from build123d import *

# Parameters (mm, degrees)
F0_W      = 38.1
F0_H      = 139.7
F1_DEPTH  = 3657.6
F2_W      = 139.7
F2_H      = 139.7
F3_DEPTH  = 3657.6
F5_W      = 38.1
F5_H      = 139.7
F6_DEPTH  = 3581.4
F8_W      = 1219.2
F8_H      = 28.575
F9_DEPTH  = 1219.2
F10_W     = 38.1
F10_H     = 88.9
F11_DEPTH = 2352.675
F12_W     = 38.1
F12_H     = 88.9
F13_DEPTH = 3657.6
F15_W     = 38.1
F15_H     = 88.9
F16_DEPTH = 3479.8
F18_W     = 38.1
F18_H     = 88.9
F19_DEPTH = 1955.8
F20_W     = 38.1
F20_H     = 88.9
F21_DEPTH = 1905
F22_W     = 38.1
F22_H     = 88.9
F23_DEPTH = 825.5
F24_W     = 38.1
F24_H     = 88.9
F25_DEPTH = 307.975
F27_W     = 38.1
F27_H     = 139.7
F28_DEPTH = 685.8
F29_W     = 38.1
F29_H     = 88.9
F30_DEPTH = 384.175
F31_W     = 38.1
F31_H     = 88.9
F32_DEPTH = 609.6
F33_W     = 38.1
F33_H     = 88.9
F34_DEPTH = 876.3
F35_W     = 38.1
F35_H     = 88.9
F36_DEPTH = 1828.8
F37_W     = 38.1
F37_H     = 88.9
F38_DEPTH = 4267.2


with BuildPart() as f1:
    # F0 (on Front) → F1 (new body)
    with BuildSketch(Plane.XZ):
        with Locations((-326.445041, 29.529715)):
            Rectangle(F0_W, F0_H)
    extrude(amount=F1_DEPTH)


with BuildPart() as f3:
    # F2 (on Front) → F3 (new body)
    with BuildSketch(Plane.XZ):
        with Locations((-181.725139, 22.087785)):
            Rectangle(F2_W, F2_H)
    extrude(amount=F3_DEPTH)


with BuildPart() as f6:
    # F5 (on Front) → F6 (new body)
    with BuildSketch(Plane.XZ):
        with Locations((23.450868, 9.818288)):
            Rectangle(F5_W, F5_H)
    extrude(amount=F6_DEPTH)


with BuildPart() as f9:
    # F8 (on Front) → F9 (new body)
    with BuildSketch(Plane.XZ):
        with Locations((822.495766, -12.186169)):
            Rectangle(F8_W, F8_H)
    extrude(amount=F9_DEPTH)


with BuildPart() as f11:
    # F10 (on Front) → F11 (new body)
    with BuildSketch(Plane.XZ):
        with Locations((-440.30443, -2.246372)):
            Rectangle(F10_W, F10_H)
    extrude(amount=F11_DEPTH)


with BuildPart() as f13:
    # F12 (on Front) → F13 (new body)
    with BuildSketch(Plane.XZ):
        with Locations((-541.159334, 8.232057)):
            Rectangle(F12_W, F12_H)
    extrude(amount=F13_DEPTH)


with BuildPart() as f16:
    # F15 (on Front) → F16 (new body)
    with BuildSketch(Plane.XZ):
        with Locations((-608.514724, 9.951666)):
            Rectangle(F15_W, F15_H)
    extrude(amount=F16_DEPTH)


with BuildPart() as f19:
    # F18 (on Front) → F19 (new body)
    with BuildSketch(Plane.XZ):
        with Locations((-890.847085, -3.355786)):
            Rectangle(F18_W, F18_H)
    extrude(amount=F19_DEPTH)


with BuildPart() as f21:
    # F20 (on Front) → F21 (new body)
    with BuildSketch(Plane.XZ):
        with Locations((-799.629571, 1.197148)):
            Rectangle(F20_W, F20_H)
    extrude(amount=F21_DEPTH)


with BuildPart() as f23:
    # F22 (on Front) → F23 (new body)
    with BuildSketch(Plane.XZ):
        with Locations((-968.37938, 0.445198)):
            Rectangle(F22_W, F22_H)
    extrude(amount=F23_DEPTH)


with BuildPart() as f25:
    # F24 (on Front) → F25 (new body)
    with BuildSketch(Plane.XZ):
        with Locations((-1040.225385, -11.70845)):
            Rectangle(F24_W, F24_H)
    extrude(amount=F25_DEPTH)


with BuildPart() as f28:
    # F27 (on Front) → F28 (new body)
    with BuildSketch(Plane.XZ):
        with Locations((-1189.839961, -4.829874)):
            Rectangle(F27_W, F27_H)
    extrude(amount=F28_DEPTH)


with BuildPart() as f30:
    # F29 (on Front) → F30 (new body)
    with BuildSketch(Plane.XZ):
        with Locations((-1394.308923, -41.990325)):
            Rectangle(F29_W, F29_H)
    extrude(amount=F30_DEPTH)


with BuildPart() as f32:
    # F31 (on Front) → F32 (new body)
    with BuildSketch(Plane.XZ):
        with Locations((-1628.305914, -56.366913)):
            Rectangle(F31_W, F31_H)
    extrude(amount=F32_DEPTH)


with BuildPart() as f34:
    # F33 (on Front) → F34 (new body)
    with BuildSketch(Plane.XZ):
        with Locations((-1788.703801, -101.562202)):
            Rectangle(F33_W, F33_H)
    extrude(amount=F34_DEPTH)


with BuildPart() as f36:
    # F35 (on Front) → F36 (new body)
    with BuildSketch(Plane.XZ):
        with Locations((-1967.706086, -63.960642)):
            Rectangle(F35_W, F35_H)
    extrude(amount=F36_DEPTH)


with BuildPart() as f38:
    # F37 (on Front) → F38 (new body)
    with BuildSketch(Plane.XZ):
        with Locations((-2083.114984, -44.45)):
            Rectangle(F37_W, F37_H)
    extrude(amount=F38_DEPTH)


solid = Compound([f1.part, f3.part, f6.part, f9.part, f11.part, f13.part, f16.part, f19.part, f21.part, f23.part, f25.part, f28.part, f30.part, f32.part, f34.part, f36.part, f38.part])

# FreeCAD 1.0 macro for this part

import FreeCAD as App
import Part
import Sketcher
Q = App.Units.Quantity


def add_polygon(sketch, points):
    """Adds a closed chain of lines whose ends are joined by coincident constraints."""
    first, n = sketch.GeometryCount, len(points)
    for a, b in zip(points, points[1:] + points[:1]):
        sketch.addGeometry(Part.LineSegment(App.Vector(*a, 0), App.Vector(*b, 0)), False)
    for i in range(n):
        sketch.addConstraint(Sketcher.Constraint("Coincident", first + i, 2, first + (i + 1) % n, 1))

doc = App.newDocument("Part")
body = doc.addObject("PartDesign::Body", "Body")

sketch1 = doc.addObject("Sketcher::SketchObject", "Sketch")
body.addObject(sketch1)
sketch1.AttachmentSupport = (doc.XZ_Plane, [""])
sketch1.MapMode = "FlatFace"
add_polygon(sketch1, [(-345.495041, 99.379715), (-345.495041, -40.320285), (-307.395041, -40.320285), (-307.395041, 99.379715)])
sketch1.addConstraint(Sketcher.Constraint("Vertical", 0))
sketch1.addConstraint(Sketcher.Constraint("Horizontal", 1))
sketch1.addConstraint(Sketcher.Constraint("Vertical", 2))
sketch1.addConstraint(Sketcher.Constraint("Horizontal", 3))
sketch1.addConstraint(Sketcher.Constraint("DistanceX", 1, 1, 1, 2, Q("1.5 in")))
sketch1.addConstraint(Sketcher.Constraint("DistanceY", 0, 2, 0, 1, Q("5.5 in")))
sketch1.addConstraint(Sketcher.Constraint("DistanceX", 0, 2, -1, 1, Q("345.495041 mm")))
sketch1.addConstraint(Sketcher.Constraint("DistanceY", 0, 2, -1, 1, Q("40.320285 mm")))
pad1 = doc.addObject("PartDesign::Pad", "Pad")
body.addObject(pad1)
pad1.Profile = sketch1
pad1.Length = Q("144 in")
body2 = doc.addObject("PartDesign::Body", "Body001")

sketch2 = doc.addObject("Sketcher::SketchObject", "Sketch001")
body2.addObject(sketch2)
sketch2.AttachmentSupport = (doc.getObject("XZ_Plane001"), [""])
sketch2.MapMode = "FlatFace"
add_polygon(sketch2, [(-251.575139, 91.937785), (-251.575139, -47.762215), (-111.875139, -47.762215), (-111.875139, 91.937785)])
sketch2.addConstraint(Sketcher.Constraint("Vertical", 0))
sketch2.addConstraint(Sketcher.Constraint("Horizontal", 1))
sketch2.addConstraint(Sketcher.Constraint("Vertical", 2))
sketch2.addConstraint(Sketcher.Constraint("Horizontal", 3))
sketch2.addConstraint(Sketcher.Constraint("Equal", 3, 0))
sketch2.addConstraint(Sketcher.Constraint("DistanceX", 1, 1, 1, 2, Q("5.5 in")))
sketch2.addConstraint(Sketcher.Constraint("DistanceX", 0, 2, -1, 1, Q("251.575139 mm")))
sketch2.addConstraint(Sketcher.Constraint("DistanceY", 0, 2, -1, 1, Q("47.762215 mm")))
pad2 = doc.addObject("PartDesign::Pad", "Pad001")
body2.addObject(pad2)
pad2.Profile = sketch2
pad2.Length = Q("144 in")
body3 = doc.addObject("PartDesign::Body", "Body002")

sketch3 = doc.addObject("Sketcher::SketchObject", "Sketch002")
body3.addObject(sketch3)
sketch3.AttachmentSupport = (doc.getObject("XZ_Plane002"), [""])
sketch3.MapMode = "FlatFace"
add_polygon(sketch3, [(4.400868, 79.668288), (4.400868, -60.031712), (42.500868, -60.031712), (42.500868, 79.668288)])
sketch3.addConstraint(Sketcher.Constraint("Vertical", 0))
sketch3.addConstraint(Sketcher.Constraint("Horizontal", 1))
sketch3.addConstraint(Sketcher.Constraint("Vertical", 2))
sketch3.addConstraint(Sketcher.Constraint("Horizontal", 3))
sketch3.addConstraint(Sketcher.Constraint("DistanceX", 1, 1, 1, 2, Q("1.5 in")))
sketch3.addConstraint(Sketcher.Constraint("DistanceY", 0, 2, 0, 1, Q("5.5 in")))
sketch3.addConstraint(Sketcher.Constraint("DistanceY", -1, 1, 2, 2, Q("79.668288 mm")))
sketch3.addConstraint(Sketcher.Constraint("DistanceX", -1, 1, 0, 2, Q("4.400868 mm")))
pad3 = doc.addObject("PartDesign::Pad", "Pad002")
body3.addObject(pad3)
pad3.Profile = sketch3
pad3.Length = Q("141 in")
body4 = doc.addObject("PartDesign::Body", "Body003")

sketch4 = doc.addObject("Sketcher::SketchObject", "Sketch003")
body4.addObject(sketch4)
sketch4.AttachmentSupport = (doc.getObject("XZ_Plane003"), [""])
sketch4.MapMode = "FlatFace"
add_polygon(sketch4, [(212.895766, 2.101331), (212.895766, -26.473669), (1432.095766, -26.473669), (1432.095766, 2.101331)])
sketch4.addConstraint(Sketcher.Constraint("Vertical", 0))
sketch4.addConstraint(Sketcher.Constraint("Horizontal", 1))
sketch4.addConstraint(Sketcher.Constraint("Vertical", 2))
sketch4.addConstraint(Sketcher.Constraint("Horizontal", 3))
sketch4.addConstraint(Sketcher.Constraint("DistanceX", 1, 1, 1, 2, Q("48 in")))
sketch4.addConstraint(Sketcher.Constraint("DistanceY", 0, 2, 0, 1, Q("1.125 in")))
sketch4.addConstraint(Sketcher.Constraint("DistanceY", 0, 2, -1, 1, Q("26.473669 mm")))
sketch4.addConstraint(Sketcher.Constraint("DistanceX", -1, 1, 0, 2, Q("212.895766 mm")))
pad4 = doc.addObject("PartDesign::Pad", "Pad003")
body4.addObject(pad4)
pad4.Profile = sketch4
pad4.Length = Q("48 in")
body5 = doc.addObject("PartDesign::Body", "Body004")

sketch5 = doc.addObject("Sketcher::SketchObject", "Sketch004")
body5.addObject(sketch5)
sketch5.AttachmentSupport = (doc.getObject("XZ_Plane004"), [""])
sketch5.MapMode = "FlatFace"
add_polygon(sketch5, [(-459.35443, 42.203628), (-459.35443, -46.696372), (-421.25443, -46.696372), (-421.25443, 42.203628)])
sketch5.addConstraint(Sketcher.Constraint("Vertical", 0))
sketch5.addConstraint(Sketcher.Constraint("Horizontal", 1))
sketch5.addConstraint(Sketcher.Constraint("Vertical", 2))
sketch5.addConstraint(Sketcher.Constraint("Horizontal", 3))
sketch5.addConstraint(Sketcher.Constraint("DistanceX", 1, 1, 1, 2, Q("1.5 in")))
sketch5.addConstraint(Sketcher.Constraint("DistanceY", 0, 2, 0, 1, Q("3.5 in")))
sketch5.addConstraint(Sketcher.Constraint("DistanceX", 0, 2, -1, 1, Q("459.35443 mm")))
sketch5.addConstraint(Sketcher.Constraint("DistanceY", 0, 2, -1, 1, Q("46.696372 mm")))
pad5 = doc.addObject("PartDesign::Pad", "Pad004")
body5.addObject(pad5)
pad5.Profile = sketch5
pad5.Length = Q("92.625 in")
body6 = doc.addObject("PartDesign::Body", "Body005")

sketch6 = doc.addObject("Sketcher::SketchObject", "Sketch005")
body6.addObject(sketch6)
sketch6.AttachmentSupport = (doc.getObject("XZ_Plane005"), [""])
sketch6.MapMode = "FlatFace"
add_polygon(sketch6, [(-560.209334, 52.682057), (-560.209334, -36.217943), (-522.109334, -36.217943), (-522.109334, 52.682057)])
sketch6.addConstraint(Sketcher.Constraint("Vertical", 0))
sketch6.addConstraint(Sketcher.Constraint("Horizontal", 1))
sketch6.addConstraint(Sketcher.Constraint("Vertical", 2))
sketch6.addConstraint(Sketcher.Constraint("Horizontal", 3))
sketch6.addConstraint(Sketcher.Constraint("DistanceX", 1, 1, 1, 2, Q("1.5 in")))
sketch6.addConstraint(Sketcher.Constraint("DistanceY", 0, 2, 0, 1, Q("3.5 in")))
sketch6.addConstraint(Sketcher.Constraint("DistanceX", 0, 2, -1, 1, Q("560.209334 mm")))
sketch6.addConstraint(Sketcher.Constraint("DistanceY", 0, 2, -1, 1, Q("36.217943 mm")))
pad6 = doc.addObject("PartDesign::Pad", "Pad005")
body6.addObject(pad6)
pad6.Profile = sketch6
pad6.Length = Q("144 in")
body7 = doc.addObject("PartDesign::Body", "Body006")

sketch7 = doc.addObject("Sketcher::SketchObject", "Sketch006")
body7.addObject(sketch7)
sketch7.AttachmentSupport = (doc.getObject("XZ_Plane006"), [""])
sketch7.MapMode = "FlatFace"
add_polygon(sketch7, [(-627.564724, 54.401666), (-627.564724, -34.498334), (-589.464724, -34.498334), (-589.464724, 54.401666)])
sketch7.addConstraint(Sketcher.Constraint("Vertical", 0))
sketch7.addConstraint(Sketcher.Constraint("Horizontal", 1))
sketch7.addConstraint(Sketcher.Constraint("Vertical", 2))
sketch7.addConstraint(Sketcher.Constraint("Horizontal", 3))
sketch7.addConstraint(Sketcher.Constraint("DistanceX", 1, 1, 1, 2, Q("1.5 in")))
sketch7.addConstraint(Sketcher.Constraint("DistanceY", 0, 2, 0, 1, Q("3.5 in")))
sketch7.addConstraint(Sketcher.Constraint("DistanceX", 0, 2, -1, 1, Q("627.564724 mm")))
sketch7.addConstraint(Sketcher.Constraint("DistanceY", 0, 2, -1, 1, Q("34.498334 mm")))
pad7 = doc.addObject("PartDesign::Pad", "Pad006")
body7.addObject(pad7)
pad7.Profile = sketch7
pad7.Length = Q("137 in")
body8 = doc.addObject("PartDesign::Body", "Body007")

sketch8 = doc.addObject("Sketcher::SketchObject", "Sketch007")
body8.addObject(sketch8)
sketch8.AttachmentSupport = (doc.getObject("XZ_Plane007"), [""])
sketch8.MapMode = "FlatFace"
add_polygon(sketch8, [(-909.897085, 41.094214), (-909.897085, -47.805786), (-871.797085, -47.805786), (-871.797085, 41.094214)])
sketch8.addConstraint(Sketcher.Constraint("Vertical", 0))
sketch8.addConstraint(Sketcher.Constraint("Horizontal", 1))
sketch8.addConstraint(Sketcher.Constraint("Vertical", 2))
sketch8.addConstraint(Sketcher.Constraint("Horizontal", 3))
sketch8.addConstraint(Sketcher.Constraint("DistanceX", 1, 1, 1, 2, Q("1.5 in")))
sketch8.addConstraint(Sketcher.Constraint("DistanceY", 0, 2, 0, 1, Q("3.5 in")))
sketch8.addConstraint(Sketcher.Constraint("DistanceX", 0, 2, -1, 1, Q("909.897085 mm")))
sketch8.addConstraint(Sketcher.Constraint("DistanceY", 0, 2, -1, 1, Q("47.805786 mm")))
pad8 = doc.addObject("PartDesign::Pad", "Pad007")
body8.addObject(pad8)
pad8.Profile = sketch8
pad8.Length = Q("77 in")
body9 = doc.addObject("PartDesign::Body", "Body008")

sketch9 = doc.addObject("Sketcher::SketchObject", "Sketch008")
body9.addObject(sketch9)
sketch9.AttachmentSupport = (doc.getObject("XZ_Plane008"), [""])
sketch9.MapMode = "FlatFace"
add_polygon(sketch9, [(-818.679571, 45.647148), (-818.679571, -43.252852), (-780.579571, -43.252852), (-780.579571, 45.647148)])
sketch9.addConstraint(Sketcher.Constraint("Vertical", 0))
sketch9.addConstraint(Sketcher.Constraint("Horizontal", 1))
sketch9.addConstraint(Sketcher.Constraint("Vertical", 2))
sketch9.addConstraint(Sketcher.Constraint("Horizontal", 3))
sketch9.addConstraint(Sketcher.Constraint("DistanceX", 1, 1, 1, 2, Q("1.5 in")))
sketch9.addConstraint(Sketcher.Constraint("DistanceY", 0, 2, 0, 1, Q("3.5 in")))
sketch9.addConstraint(Sketcher.Constraint("DistanceX", 0, 2, -1, 1, Q("818.679571 mm")))
sketch9.addConstraint(Sketcher.Constraint("DistanceY", 0, 2, -1, 1, Q("43.252852 mm")))
pad9 = doc.addObject("PartDesign::Pad", "Pad008")
body9.addObject(pad9)
pad9.Profile = sketch9
pad9.Length = Q("75 in")
body10 = doc.addObject("PartDesign::Body", "Body009")

sketch10 = doc.addObject("Sketcher::SketchObject", "Sketch009")
body10.addObject(sketch10)
sketch10.AttachmentSupport = (doc.getObject("XZ_Plane009"), [""])
sketch10.MapMode = "FlatFace"
add_polygon(sketch10, [(-987.42938, 44.895198), (-987.42938, -44.004802), (-949.32938, -44.004802), (-949.32938, 44.895198)])
sketch10.addConstraint(Sketcher.Constraint("Vertical", 0))
sketch10.addConstraint(Sketcher.Constraint("Horizontal", 1))
sketch10.addConstraint(Sketcher.Constraint("Vertical", 2))
sketch10.addConstraint(Sketcher.Constraint("Horizontal", 3))
sketch10.addConstraint(Sketcher.Constraint("DistanceX", 1, 1, 1, 2, Q("1.5 in")))
sketch10.addConstraint(Sketcher.Constraint("DistanceY", 0, 2, 0, 1, Q("3.5 in")))
sketch10.addConstraint(Sketcher.Constraint("DistanceY", 0, 2, -1, 1, Q("44.004802 mm")))
sketch10.addConstraint(Sketcher.Constraint("DistanceX", 0, 2, -1, 1, Q("987.42938 mm")))
pad10 = doc.addObject("PartDesign::Pad", "Pad009")
body10.addObject(pad10)
pad10.Profile = sketch10
pad10.Length = Q("32.5 in")
body11 = doc.addObject("PartDesign::Body", "Body010")

sketch11 = doc.addObject("Sketcher::SketchObject", "Sketch010")
body11.addObject(sketch11)
sketch11.AttachmentSupport = (doc.getObject("XZ_Plane010"), [""])
sketch11.MapMode = "FlatFace"
add_polygon(sketch11, [(-1059.275385, 32.74155), (-1059.275385, -56.15845), (-1021.175385, -56.15845), (-1021.175385, 32.74155)])
sketch11.addConstraint(Sketcher.Constraint("Vertical", 0))
sketch11.addConstraint(Sketcher.Constraint("Horizontal", 1))
sketch11.addConstraint(Sketcher.Constraint("Vertical", 2))
sketch11.addConstraint(Sketcher.Constraint("Horizontal", 3))
sketch11.addConstraint(Sketcher.Constraint("DistanceX", 1, 1, 1, 2, Q("1.5 in")))
sketch11.addConstraint(Sketcher.Constraint("DistanceY", 0, 2, 0, 1, Q("3.5 in")))
sketch11.addConstraint(Sketcher.Constraint("DistanceY", 0, 2, -1, 1, Q("56.15845 mm")))
sketch11.addConstraint(Sketcher.Constraint("DistanceX", 0, 2, -1, 1, Q("1059.275385 mm")))
pad11 = doc.addObject("PartDesign::Pad", "Pad010")
body11.addObject(pad11)
pad11.Profile = sketch11
pad11.Length = Q("12.125 in")
body12 = doc.addObject("PartDesign::Body", "Body011")

sketch12 = doc.addObject("Sketcher::SketchObject", "Sketch011")
body12.addObject(sketch12)
sketch12.AttachmentSupport = (doc.getObject("XZ_Plane011"), [""])
sketch12.MapMode = "FlatFace"
add_polygon(sketch12, [(-1208.889961, 65.020126), (-1208.889961, -74.679874), (-1170.789961, -74.679874), (-1170.789961, 65.020126)])
sketch12.addConstraint(Sketcher.Constraint("Vertical", 0))
sketch12.addConstraint(Sketcher.Constraint("Horizontal", 1))
sketch12.addConstraint(Sketcher.Constraint("Vertical", 2))
sketch12.addConstraint(Sketcher.Constraint("Horizontal", 3))
sketch12.addConstraint(Sketcher.Constraint("DistanceX", 1, 1, 1, 2, Q("1.5 in")))
sketch12.addConstraint(Sketcher.Constraint("DistanceY", 0, 2, 0, 1, Q("5.5 in")))
sketch12.addConstraint(Sketcher.Constraint("DistanceX", 0, 2, -1, 1, Q("1208.889961 mm")))
sketch12.addConstraint(Sketcher.Constraint("DistanceY", 0, 2, -1, 1, Q("74.679874 mm")))
pad12 = doc.addObject("PartDesign::Pad", "Pad011")
body12.addObject(pad12)
pad12.Profile = sketch12
pad12.Length = Q("27 in")
body13 = doc.addObject("PartDesign::Body", "Body012")

sketch13 = doc.addObject("Sketcher::SketchObject", "Sketch012")
body13.addObject(sketch13)
sketch13.AttachmentSupport = (doc.getObject("XZ_Plane012"), [""])
sketch13.MapMode = "FlatFace"
add_polygon(sketch13, [(-1413.358923, 2.459675), (-1413.358923, -86.440325), (-1375.258923, -86.440325), (-1375.258923, 2.459675)])
sketch13.addConstraint(Sketcher.Constraint("Vertical", 0))
sketch13.addConstraint(Sketcher.Constraint("Horizontal", 1))
sketch13.addConstraint(Sketcher.Constraint("Vertical", 2))
sketch13.addConstraint(Sketcher.Constraint("Horizontal", 3))
sketch13.addConstraint(Sketcher.Constraint("DistanceX", 1, 1, 1, 2, Q("1.5 in")))
sketch13.addConstraint(Sketcher.Constraint("DistanceY", 0, 2, 0, 1, Q("3.5 in")))
sketch13.addConstraint(Sketcher.Constraint("DistanceX", 0, 2, -1, 1, Q("1413.358923 mm")))
sketch13.addConstraint(Sketcher.Constraint("DistanceY", 0, 2, -1, 1, Q("86.440325 mm")))
pad13 = doc.addObject("PartDesign::Pad", "Pad012")
body13.addObject(pad13)
pad13.Profile = sketch13
pad13.Length = Q("15.125 in")
body14 = doc.addObject("PartDesign::Body", "Body013")

sketch14 = doc.addObject("Sketcher::SketchObject", "Sketch013")
body14.addObject(sketch14)
sketch14.AttachmentSupport = (doc.getObject("XZ_Plane013"), [""])
sketch14.MapMode = "FlatFace"
add_polygon(sketch14, [(-1647.355914, -11.916913), (-1647.355914, -100.816913), (-1609.255914, -100.816913), (-1609.255914, -11.916913)])
sketch14.addConstraint(Sketcher.Constraint("Vertical", 0))
sketch14.addConstraint(Sketcher.Constraint("Horizontal", 1))
sketch14.addConstraint(Sketcher.Constraint("Vertical", 2))
sketch14.addConstraint(Sketcher.Constraint("Horizontal", 3))
sketch14.addConstraint(Sketcher.Constraint("DistanceX", 1, 1, 1, 2, Q("1.5 in")))
sketch14.addConstraint(Sketcher.Constraint("DistanceY", 0, 2, 0, 1, Q("3.5 in")))
sketch14.addConstraint(Sketcher.Constraint("DistanceX", 0, 2, -1, 1, Q("1647.355914 mm")))
sketch14.addConstraint(Sketcher.Constraint("DistanceY", 0, 2, -1, 1, Q("100.816913 mm")))
pad14 = doc.addObject("PartDesign::Pad", "Pad013")
body14.addObject(pad14)
pad14.Profile = sketch14
pad14.Length = Q("24 in")
body15 = doc.addObject("PartDesign::Body", "Body014")

sketch15 = doc.addObject("Sketcher::SketchObject", "Sketch014")
body15.addObject(sketch15)
sketch15.AttachmentSupport = (doc.getObject("XZ_Plane014"), [""])
sketch15.MapMode = "FlatFace"
add_polygon(sketch15, [(-1807.753801, -57.112202), (-1807.753801, -146.012202), (-1769.653801, -146.012202), (-1769.653801, -57.112202)])
sketch15.addConstraint(Sketcher.Constraint("Vertical", 0))
sketch15.addConstraint(Sketcher.Constraint("Horizontal", 1))
sketch15.addConstraint(Sketcher.Constraint("Vertical", 2))
sketch15.addConstraint(Sketcher.Constraint("Horizontal", 3))
sketch15.addConstraint(Sketcher.Constraint("DistanceX", 1, 1, 1, 2, Q("1.5 in")))
sketch15.addConstraint(Sketcher.Constraint("DistanceY", 0, 2, 0, 1, Q("3.5 in")))
sketch15.addConstraint(Sketcher.Constraint("DistanceX", 0, 2, -1, 1, Q("1807.753801 mm")))
sketch15.addConstraint(Sketcher.Constraint("DistanceY", 0, 2, -1, 1, Q("146.012202 mm")))
pad15 = doc.addObject("PartDesign::Pad", "Pad014")
body15.addObject(pad15)
pad15.Profile = sketch15
pad15.Length = Q("34.5 in")
body16 = doc.addObject("PartDesign::Body", "Body015")

sketch16 = doc.addObject("Sketcher::SketchObject", "Sketch015")
body16.addObject(sketch16)
sketch16.AttachmentSupport = (doc.getObject("XZ_Plane015"), [""])
sketch16.MapMode = "FlatFace"
add_polygon(sketch16, [(-1986.756086, -19.510642), (-1986.756086, -108.410642), (-1948.656086, -108.410642), (-1948.656086, -19.510642)])
sketch16.addConstraint(Sketcher.Constraint("Vertical", 0))
sketch16.addConstraint(Sketcher.Constraint("Horizontal", 1))
sketch16.addConstraint(Sketcher.Constraint("Vertical", 2))
sketch16.addConstraint(Sketcher.Constraint("Horizontal", 3))
sketch16.addConstraint(Sketcher.Constraint("DistanceX", 1, 1, 1, 2, Q("1.5 in")))
sketch16.addConstraint(Sketcher.Constraint("DistanceY", 0, 2, 0, 1, Q("3.5 in")))
sketch16.addConstraint(Sketcher.Constraint("DistanceY", 0, 2, -1, 1, Q("108.410642 mm")))
sketch16.addConstraint(Sketcher.Constraint("DistanceX", 0, 2, -1, 1, Q("1986.756086 mm")))
pad16 = doc.addObject("PartDesign::Pad", "Pad015")
body16.addObject(pad16)
pad16.Profile = sketch16
pad16.Length = Q("72 in")
body17 = doc.addObject("PartDesign::Body", "Body016")

sketch17 = doc.addObject("Sketcher::SketchObject", "Sketch016")
body17.addObject(sketch17)
sketch17.AttachmentSupport = (doc.getObject("XZ_Plane016"), [""])
sketch17.MapMode = "FlatFace"
add_polygon(sketch17, [(-2102.164984, 0), (-2102.164984, -88.9), (-2064.064984, -88.9), (-2064.064984, 0)])
sketch17.addConstraint(Sketcher.Constraint("Vertical", 0))
sketch17.addConstraint(Sketcher.Constraint("Horizontal", 1))
sketch17.addConstraint(Sketcher.Constraint("Vertical", 2))
sketch17.addConstraint(Sketcher.Constraint("Horizontal", 3))
sketch17.addConstraint(Sketcher.Constraint("PointOnObject", 2, 2, -1))
sketch17.addConstraint(Sketcher.Constraint("DistanceX", 1, 1, 1, 2, Q("1.5 in")))
sketch17.addConstraint(Sketcher.Constraint("DistanceY", 0, 2, 0, 1, Q("3.5 in")))
sketch17.addConstraint(Sketcher.Constraint("DistanceX", 0, 2, -1, 1, Q("2102.164984 mm")))
pad17 = doc.addObject("PartDesign::Pad", "Pad016")
body17.addObject(pad17)
pad17.Profile = sketch17
pad17.Length = Q("168 in")

doc.recompute()
